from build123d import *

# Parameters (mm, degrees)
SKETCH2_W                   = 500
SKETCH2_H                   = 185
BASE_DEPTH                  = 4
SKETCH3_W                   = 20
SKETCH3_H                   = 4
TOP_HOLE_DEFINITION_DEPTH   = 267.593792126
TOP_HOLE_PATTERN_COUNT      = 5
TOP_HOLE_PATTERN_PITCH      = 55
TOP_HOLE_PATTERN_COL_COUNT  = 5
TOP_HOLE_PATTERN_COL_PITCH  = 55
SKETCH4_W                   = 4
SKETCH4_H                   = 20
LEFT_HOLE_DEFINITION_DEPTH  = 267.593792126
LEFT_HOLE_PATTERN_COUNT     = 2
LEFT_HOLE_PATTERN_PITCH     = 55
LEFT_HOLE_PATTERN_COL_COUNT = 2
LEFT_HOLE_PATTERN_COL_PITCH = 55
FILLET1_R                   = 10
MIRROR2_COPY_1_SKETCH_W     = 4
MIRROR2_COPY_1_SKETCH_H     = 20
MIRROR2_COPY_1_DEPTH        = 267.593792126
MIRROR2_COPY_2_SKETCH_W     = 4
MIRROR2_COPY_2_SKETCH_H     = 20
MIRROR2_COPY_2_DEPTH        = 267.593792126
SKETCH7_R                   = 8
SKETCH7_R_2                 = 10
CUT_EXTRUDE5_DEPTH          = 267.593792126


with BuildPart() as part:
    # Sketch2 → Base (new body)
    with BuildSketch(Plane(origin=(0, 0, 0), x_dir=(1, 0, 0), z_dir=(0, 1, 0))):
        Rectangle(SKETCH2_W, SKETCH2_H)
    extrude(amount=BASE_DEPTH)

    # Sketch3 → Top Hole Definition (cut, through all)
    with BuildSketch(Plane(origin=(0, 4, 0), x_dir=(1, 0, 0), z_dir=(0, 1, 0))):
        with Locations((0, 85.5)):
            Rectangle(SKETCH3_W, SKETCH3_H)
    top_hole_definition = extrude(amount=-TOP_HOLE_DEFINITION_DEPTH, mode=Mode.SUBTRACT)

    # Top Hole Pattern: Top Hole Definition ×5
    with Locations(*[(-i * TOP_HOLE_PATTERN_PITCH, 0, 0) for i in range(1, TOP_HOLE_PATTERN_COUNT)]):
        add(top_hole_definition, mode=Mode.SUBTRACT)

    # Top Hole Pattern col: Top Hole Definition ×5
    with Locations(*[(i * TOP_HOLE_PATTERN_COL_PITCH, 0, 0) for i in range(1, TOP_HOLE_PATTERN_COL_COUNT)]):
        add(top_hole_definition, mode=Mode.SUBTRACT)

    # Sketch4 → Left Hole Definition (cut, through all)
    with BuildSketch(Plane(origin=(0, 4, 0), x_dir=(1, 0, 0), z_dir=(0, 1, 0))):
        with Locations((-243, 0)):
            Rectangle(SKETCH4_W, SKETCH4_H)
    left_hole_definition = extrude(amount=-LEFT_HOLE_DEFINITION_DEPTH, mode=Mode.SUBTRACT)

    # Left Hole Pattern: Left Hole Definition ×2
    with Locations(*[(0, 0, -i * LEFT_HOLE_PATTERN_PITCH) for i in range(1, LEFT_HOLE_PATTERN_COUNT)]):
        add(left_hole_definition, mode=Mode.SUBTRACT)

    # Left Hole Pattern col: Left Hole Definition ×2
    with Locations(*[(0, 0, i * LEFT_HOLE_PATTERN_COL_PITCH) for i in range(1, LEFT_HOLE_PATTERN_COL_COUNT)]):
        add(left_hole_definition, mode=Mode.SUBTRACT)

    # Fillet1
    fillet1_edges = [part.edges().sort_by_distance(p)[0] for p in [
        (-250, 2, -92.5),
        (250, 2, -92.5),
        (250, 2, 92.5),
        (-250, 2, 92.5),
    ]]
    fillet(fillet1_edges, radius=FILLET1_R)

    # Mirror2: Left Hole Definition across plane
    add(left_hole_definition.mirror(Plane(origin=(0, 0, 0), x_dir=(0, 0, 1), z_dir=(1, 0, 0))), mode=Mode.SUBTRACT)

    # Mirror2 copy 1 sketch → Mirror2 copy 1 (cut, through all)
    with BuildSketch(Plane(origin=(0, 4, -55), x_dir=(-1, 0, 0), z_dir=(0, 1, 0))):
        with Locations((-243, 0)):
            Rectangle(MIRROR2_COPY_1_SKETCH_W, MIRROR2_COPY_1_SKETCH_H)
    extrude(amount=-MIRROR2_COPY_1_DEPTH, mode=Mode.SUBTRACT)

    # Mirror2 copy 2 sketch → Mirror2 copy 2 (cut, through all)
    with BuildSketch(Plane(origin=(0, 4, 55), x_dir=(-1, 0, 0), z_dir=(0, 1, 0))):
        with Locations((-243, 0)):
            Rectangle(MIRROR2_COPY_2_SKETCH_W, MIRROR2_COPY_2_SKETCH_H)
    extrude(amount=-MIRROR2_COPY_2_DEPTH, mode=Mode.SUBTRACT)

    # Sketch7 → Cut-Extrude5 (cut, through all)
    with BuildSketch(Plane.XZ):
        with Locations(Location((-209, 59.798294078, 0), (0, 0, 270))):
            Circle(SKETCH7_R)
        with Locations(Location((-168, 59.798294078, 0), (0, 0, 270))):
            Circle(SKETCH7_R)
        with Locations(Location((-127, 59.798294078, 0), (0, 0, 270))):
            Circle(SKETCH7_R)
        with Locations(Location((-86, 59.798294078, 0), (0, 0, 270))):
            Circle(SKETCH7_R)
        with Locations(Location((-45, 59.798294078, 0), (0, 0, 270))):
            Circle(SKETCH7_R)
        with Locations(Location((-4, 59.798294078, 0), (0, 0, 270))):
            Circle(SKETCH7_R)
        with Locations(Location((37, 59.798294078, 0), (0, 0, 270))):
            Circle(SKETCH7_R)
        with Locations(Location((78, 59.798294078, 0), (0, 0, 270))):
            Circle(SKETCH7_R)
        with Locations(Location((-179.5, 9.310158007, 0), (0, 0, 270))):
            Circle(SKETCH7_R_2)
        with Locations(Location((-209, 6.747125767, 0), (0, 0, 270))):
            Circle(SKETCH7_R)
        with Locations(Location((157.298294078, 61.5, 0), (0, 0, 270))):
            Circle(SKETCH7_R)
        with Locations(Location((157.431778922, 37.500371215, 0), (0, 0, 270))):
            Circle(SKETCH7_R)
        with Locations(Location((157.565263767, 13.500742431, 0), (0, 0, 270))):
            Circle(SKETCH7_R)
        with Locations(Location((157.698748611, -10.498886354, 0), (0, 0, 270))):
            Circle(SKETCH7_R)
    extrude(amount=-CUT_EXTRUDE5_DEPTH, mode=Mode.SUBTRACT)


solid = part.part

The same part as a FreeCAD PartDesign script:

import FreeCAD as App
import Part
import Sketcher
Q = App.Units.Quantity


def edges_at(feature, points):
    """Names of the edges that pass closest to the given points."""
    edges = feature.Shape.Edges
    near = lambda p: min(range(len(edges)), key=lambda i: edges[i].distToShape(Part.Vertex(*p))[0])
    return sorted({f"Edge{near(p) + 1}" for p in points})

doc = App.newDocument("Part")
body = doc.addObject("PartDesign::Body", "Body")

sketch1 = body.newObject("Sketcher::SketchObject", "Sketch")
sketch1.AttachmentSupport = (doc.getObject("XZ_Plane"), [""])
sketch1.MapMode = "FlatFace"
sketch1.addGeometry([
    Part.LineSegment(App.Vector(-250, -92, 0), App.Vector(-250, 92, 0)),
    Part.LineSegment(App.Vector(-250, 92, 0), App.Vector(250, 92, 0)),
    Part.LineSegment(App.Vector(250, 92, 0), App.Vector(250, -92, 0)),
    Part.LineSegment(App.Vector(250, -92, 0), App.Vector(-250, -92, 0)),
], False)
sketch1.addConstraint([
    Sketcher.Constraint("Coincident", 0, 2, 1, 1),
    Sketcher.Constraint("Coincident", 1, 2, 2, 1),
    Sketcher.Constraint("Coincident", 2, 2, 3, 1),
    Sketcher.Constraint("Coincident", 3, 2, 0, 1),
    Sketcher.Constraint("Vertical", 0),
    Sketcher.Constraint("Horizontal", 1),
    Sketcher.Constraint("Vertical", 2),
    Sketcher.Constraint("Horizontal", 3),
    Sketcher.Constraint("Symmetric", 0, 2, 2, 2, -1, 1),
    Sketcher.Constraint("DistanceX", 1, 1, 1, 2, Q("500 mm")),
    Sketcher.Constraint("DistanceY", 0, 1, 0, 2, Q("185 mm")),
])
pad1 = body.newObject("PartDesign::Pad", "Pad")
pad1.Profile = sketch1
pad1.Length = 4
pad1.Reversed = True

sketch2 = body.newObject("Sketcher::SketchObject", "Sketch001")
sketch2.AttachmentSupport = (doc.getObject("XZ_Plane"), [""])
sketch2.MapMode = "FlatFace"
sketch2.AttachmentOffset = App.Placement(App.Vector(0, 0, -4), App.Rotation())
sketch2.addGeometry([
    Part.LineSegment(App.Vector(-10, -87.5, 0), App.Vector(-10, -83.5, 0)),
    Part.LineSegment(App.Vector(-10, -83.5, 0), App.Vector(10, -83.5, 0)),
    Part.LineSegment(App.Vector(10, -83.5, 0), App.Vector(10, -87.5, 0)),
    Part.LineSegment(App.Vector(10, -87.5, 0), App.Vector(-10, -87.5, 0)),
], False)
sketch2.addConstraint([
    Sketcher.Constraint("Coincident", 0, 2, 1, 1),
    Sketcher.Constraint("Coincident", 1, 2, 2, 1),
    Sketcher.Constraint("Coincident", 2, 2, 3, 1),
    Sketcher.Constraint("Coincident", 3, 2, 0, 1),
    Sketcher.Constraint("Vertical", 0),
    Sketcher.Constraint("Horizontal", 1),
    Sketcher.Constraint("Vertical", 2),
    Sketcher.Constraint("Horizontal", 3),
    Sketcher.Constraint("DistanceX", 1, 1, 1, 2, Q("20 mm")),
    Sketcher.Constraint("DistanceY", 0, 1, 0, 2, Q("4 mm")),
    Sketcher.Constraint("DistanceX", 0, 2, -1, 1, Q("10 mm")),
    Sketcher.Constraint("DistanceY", 0, 2, -1, 1, Q("83.5 mm")),
])
pocket1 = body.newObject("PartDesign::Pocket", "Pocket")
pocket1.Profile = sketch2
pocket1.Type = "ThroughAll"
pocket1.Reversed = True
doc.recompute()

linearpattern = body.newObject("PartDesign::LinearPattern", "LinearPattern")
linearpattern.Originals = [pocket1]
linearpattern.Direction = (doc.getObject("X_Axis"), [""])
linearpattern.Mode = "offset"
linearpattern.Offset = 55
linearpattern.Occurrences = 5
linearpattern.Reversed = True
body.Tip = linearpattern
doc.recompute()

linearpattern2 = body.newObject("PartDesign::LinearPattern", "LinearPattern001")
linearpattern2.Originals = [pocket1]
linearpattern2.Direction = (doc.getObject("X_Axis"), [""])
linearpattern2.Mode = "offset"
linearpattern2.Offset = 55
linearpattern2.Occurrences = 5
body.Tip = linearpattern2

sketch3 = body.newObject("Sketcher::SketchObject", "Sketch002")
sketch3.AttachmentSupport = (doc.getObject("XZ_Plane"), [""])
sketch3.MapMode = "FlatFace"
sketch3.AttachmentOffset = App.Placement(App.Vector(0, 0, -4), App.Rotation())
sketch3.addGeometry([
    Part.LineSegment(App.Vector(-245, -10, 0), App.Vector(-245, 10, 0)),
    Part.LineSegment(App.Vector(-245, 10, 0), App.Vector(-241, 10, 0)),
    Part.LineSegment(App.Vector(-241, 10, 0), App.Vector(-241, -10, 0)),
    Part.LineSegment(App.Vector(-241, -10, 0), App.Vector(-245, -10, 0)),
], False)
sketch3.addConstraint([
    Sketcher.Constraint("Coincident", 0, 2, 1, 1),
    Sketcher.Constraint("Coincident", 1, 2, 2, 1),
    Sketcher.Constraint("Coincident", 2, 2, 3, 1),
    Sketcher.Constraint("Coincident", 3, 2, 0, 1),
    Sketcher.Constraint("Vertical", 0),
    Sketcher.Constraint("Horizontal", 1),
    Sketcher.Constraint("Vertical", 2),
    Sketcher.Constraint("Horizontal", 3),
    Sketcher.Constraint("DistanceX", 1, 1, 1, 2, Q("4 mm")),
    Sketcher.Constraint("DistanceY", 0, 1, 0, 2, Q("20 mm")),
    Sketcher.Constraint("DistanceX", 0, 2, -1, 1, Q("245 mm")),
    Sketcher.Constraint("DistanceY", -1, 1, 0, 2, Q("10 mm")),
])
pocket2 = body.newObject("PartDesign::Pocket", "Pocket001")
pocket2.Profile = sketch3
pocket2.Type = "ThroughAll"
pocket2.Reversed = True
doc.recompute()

linearpattern3 = body.newObject("PartDesign::LinearPattern", "LinearPattern002")
linearpattern3.Originals = [pocket2]
linearpattern3.Direction = (doc.getObject("Z_Axis"), [""])
linearpattern3.Mode = "offset"
linearpattern3.Offset = 55
linearpattern3.Occurrences = 2
linearpattern3.Reversed = True
body.Tip = linearpattern3
doc.recompute()

linearpattern4 = body.newObject("PartDesign::LinearPattern", "LinearPattern003")
linearpattern4.Originals = [pocket2]
linearpattern4.Direction = (doc.getObject("Z_Axis"), [""])
linearpattern4.Mode = "offset"
linearpattern4.Offset = 55
linearpattern4.Occurrences = 2
body.Tip = linearpattern4
doc.recompute()

fillet = body.newObject("PartDesign::Fillet", "Fillet")
fillet.Base = (linearpattern4, edges_at(linearpattern4, [
    (-250, 2, -92.5),
    (250, 2, -92.5),
    (250, 2, 92.5),
    (-250, 2, 92.5),
]))
fillet.Radius = 10
doc.recompute()

mirrored = body.newObject("PartDesign::Mirrored", "Mirrored")
mirrored.Originals = [pocket2]
mirrored.MirrorPlane = (doc.getObject("YZ_Plane"), [""])
body.Tip = mirrored

sketch4 = body.newObject("Sketcher::SketchObject", "Sketch003")
sketch4.AttachmentSupport = (doc.getObject("XZ_Plane"), [""])
sketch4.MapMode = "FlatFace"
sketch4.AttachmentOffset = App.Placement(App.Vector(0, 0, -4), App.Rotation())
sketch4.addGeometry([
    Part.LineSegment(App.Vector(245, -45, 0), App.Vector(245, -65, 0)),
    Part.LineSegment(App.Vector(245, -65, 0), App.Vector(241, -65, 0)),
    Part.LineSegment(App.Vector(241, -65, 0), App.Vector(241, -45, 0)),
    Part.LineSegment(App.Vector(241, -45, 0), App.Vector(245, -45, 0)),
], False)
sketch4.addConstraint([
    Sketcher.Constraint("Coincident", 0, 2, 1, 1),
    Sketcher.Constraint("Coincident", 1, 2, 2, 1),
    Sketcher.Constraint("Coincident", 2, 2, 3, 1),
    Sketcher.Constraint("Coincident", 3, 2, 0, 1),
    Sketcher.Constraint("Vertical", 0),
    Sketcher.Constraint("Horizontal", 1),
    Sketcher.Constraint("Vertical", 2),
    Sketcher.Constraint("Horizontal", 3),
    Sketcher.Constraint("DistanceX", 1, 2, 1, 1, Q("4 mm")),
    Sketcher.Constraint("DistanceY", 0, 2, 0, 1, Q("20 mm")),
    Sketcher.Constraint("DistanceX", -1, 1, 0, 2, Q("245 mm")),
    Sketcher.Constraint("DistanceY", 0, 2, -1, 1, Q("65 mm")),
])
pocket3 = body.newObject("PartDesign::Pocket", "Pocket002")
pocket3.Profile = sketch4
pocket3.Type = "ThroughAll"
pocket3.Reversed = True

sketch5 = body.newObject("Sketcher::SketchObject", "Sketch004")
sketch5.AttachmentSupport = (doc.getObject("XZ_Plane"), [""])
sketch5.MapMode = "FlatFace"
sketch5.AttachmentOffset = App.Placement(App.Vector(0, 0, -4), App.Rotation())
sketch5.addGeometry([
    Part.LineSegment(App.Vector(245, 65, 0), App.Vector(245, 45, 0)),
    Part.LineSegment(App.Vector(245, 45, 0), App.Vector(241, 45, 0)),
    Part.LineSegment(App.Vector(241, 45, 0), App.Vector(241, 65, 0)),
    Part.LineSegment(App.Vector(241, 65, 0), App.Vector(245, 65, 0)),
], False)
sketch5.addConstraint([
    Sketcher.Constraint("Coincident", 0, 2, 1, 1),
    Sketcher.Constraint("Coincident", 1, 2, 2, 1),
    Sketcher.Constraint("Coincident", 2, 2, 3, 1),
    Sketcher.Constraint("Coincident", 3, 2, 0, 1),
    Sketcher.Constraint("Vertical", 0),
    Sketcher.Constraint("Horizontal", 1),
    Sketcher.Constraint("Vertical", 2),
    Sketcher.Constraint("Horizontal", 3),
    Sketcher.Constraint("DistanceX", 1, 2, 1, 1, Q("4 mm")),
    Sketcher.Constraint("DistanceY", 0, 2, 0, 1, Q("20 mm")),
    Sketcher.Constraint("DistanceX", -1, 1, 0, 2, Q("245 mm")),
    Sketcher.Constraint("DistanceY", -1, 1, 0, 2, Q("45 mm")),
])
pocket4 = body.newObject("PartDesign::Pocket", "Pocket003")
pocket4.Profile = sketch5
pocket4.Type = "ThroughAll"
pocket4.Reversed = True

sketch6 = body.newObject("Sketcher::SketchObject", "Sketch005")
sketch6.AttachmentSupport = (doc.getObject("XZ_Plane"), [""])
sketch6.MapMode = "FlatFace"
sketch6.addGeometry([
    Part.Circle(App.Vector(-209, 60, 0), App.Vector(0, 0, 1), 8),
    Part.Circle(App.Vector(-168, 60, 0), App.Vector(0, 0, 1), 8),
    Part.Circle(App.Vector(-127, 60, 0), App.Vector(0, 0, 1), 8),
    Part.Circle(App.Vector(-86, 60, 0), App.Vector(0, 0, 1), 8),
    Part.Circle(App.Vector(-45, 60, 0), App.Vector(0, 0, 1), 8),
    Part.Circle(App.Vector(-4, 60, 0), App.Vector(0, 0, 1), 8),
    Part.Circle(App.Vector(37, 60, 0), App.Vector(0, 0, 1), 8),
    Part.Circle(App.Vector(78, 60, 0), App.Vector(0, 0, 1), 8),
    Part.Circle(App.Vector(-180, 9, 0), App.Vector(0, 0, 1), 10),
    Part.Circle(App.Vector(-209, 7, 0), App.Vector(0, 0, 1), 8),
    Part.Circle(App.Vector(157, 62, 0), App.Vector(0, 0, 1), 8),
    Part.Circle(App.Vector(157, 38, 0), App.Vector(0, 0, 1), 8),
    Part.Circle(App.Vector(158, 14, 0), App.Vector(0, 0, 1), 8),
    Part.Circle(App.Vector(158, -10, 0), App.Vector(0, 0, 1), 8),
], False)
sketch6.addConstraint([
    Sketcher.Constraint("Equal", 0, 1),
    Sketcher.Constraint("Equal", 1, 2),
    Sketcher.Constraint("Equal", 2, 3),
    Sketcher.Constraint("Equal", 3, 4),
    Sketcher.Constraint("Equal", 4, 5),
    Sketcher.Constraint("Equal", 5, 6),
    Sketcher.Constraint("Equal", 6, 7),
    Sketcher.Constraint("Equal", 7, 9),
    Sketcher.Constraint("Equal", 9, 10),
    Sketcher.Constraint("Equal", 10, 11),
    Sketcher.Constraint("Equal", 11, 12),
    Sketcher.Constraint("Equal", 12, 13),
    Sketcher.Constraint("Horizontal", 0, 3, 1, 3),
    Sketcher.Constraint("Horizontal", 1, 3, 2, 3),
    Sketcher.Constraint("Horizontal", 2, 3, 3, 3),
    Sketcher.Constraint("Horizontal", 3, 3, 4, 3),
    Sketcher.Constraint("Horizontal", 4, 3, 5, 3),
    Sketcher.Constraint("Horizontal", 5, 3, 6, 3),
    Sketcher.Constraint("Horizontal", 6, 3, 7, 3),
    Sketcher.Constraint("Vertical", 0, 3, 9, 3),
    Sketcher.Constraint("Diameter", 0, Q("16 mm")),
    Sketcher.Constraint("Diameter", 8, Q("20 mm")),
    Sketcher.Constraint("DistanceX", 0, 3, -1, 1, Q("209 mm")),
    Sketcher.Constraint("DistanceX", 1, 3, -1, 1, Q("168 mm")),
    Sketcher.Constraint("DistanceX", 2, 3, -1, 1, Q("127 mm")),
    Sketcher.Constraint("DistanceX", 3, 3, -1, 1, Q("86 mm")),
    Sketcher.Constraint("DistanceX", 4, 3, -1, 1, Q("45 mm")),
    Sketcher.Constraint("DistanceX", 5, 3, -1, 1, Q("4 mm")),
    Sketcher.Constraint("DistanceX", -1, 1, 6, 3, Q("37 mm")),
    Sketcher.Constraint("DistanceX", -1, 1, 7, 3, Q("78 mm")),
    Sketcher.Constraint("DistanceX", 8, 3, -1, 1, Q("179.5 mm")),
    Sketcher.Constraint("DistanceY", -1, 1, 10, 3, Q("61.5 mm")),
    Sketcher.Constraint("DistanceY", -1, 1, 8, 3, Q("9.310158 mm")),
    Sketcher.Constraint("DistanceX", -1, 1, 11, 3, Q("157.431779 mm")),
    Sketcher.Constraint("DistanceY", -1, 1, 11, 3, Q("37.500371 mm")),
    Sketcher.Constraint("DistanceX", -1, 1, 13, 3, Q("157.698749 mm")),
    Sketcher.Constraint("DistanceY", 9, 3, 0, 3, Q("53.051168 mm")),
    Sketcher.Constraint("DistanceY", 12, 3, 11, 3, Q("23.999629 mm")),
    Sketcher.Constraint("DistanceX", 10, 3, 12, 3, Q("0.26697 mm")),
    Sketcher.Constraint("DistanceY", 12, 3, 7, 3, Q("46.297552 mm")),
    Sketcher.Constraint("DistanceY", 13, 3, 12, 3, Q("23.999629 mm")),
    Sketcher.Constraint("DistanceX", -1, 1, 10, 3, Q("157.298294 mm")),
])
pocket5 = body.newObject("PartDesign::Pocket", "Pocket004")
pocket5.Profile = sketch6
pocket5.Type = "ThroughAll"

doc.recompute()
